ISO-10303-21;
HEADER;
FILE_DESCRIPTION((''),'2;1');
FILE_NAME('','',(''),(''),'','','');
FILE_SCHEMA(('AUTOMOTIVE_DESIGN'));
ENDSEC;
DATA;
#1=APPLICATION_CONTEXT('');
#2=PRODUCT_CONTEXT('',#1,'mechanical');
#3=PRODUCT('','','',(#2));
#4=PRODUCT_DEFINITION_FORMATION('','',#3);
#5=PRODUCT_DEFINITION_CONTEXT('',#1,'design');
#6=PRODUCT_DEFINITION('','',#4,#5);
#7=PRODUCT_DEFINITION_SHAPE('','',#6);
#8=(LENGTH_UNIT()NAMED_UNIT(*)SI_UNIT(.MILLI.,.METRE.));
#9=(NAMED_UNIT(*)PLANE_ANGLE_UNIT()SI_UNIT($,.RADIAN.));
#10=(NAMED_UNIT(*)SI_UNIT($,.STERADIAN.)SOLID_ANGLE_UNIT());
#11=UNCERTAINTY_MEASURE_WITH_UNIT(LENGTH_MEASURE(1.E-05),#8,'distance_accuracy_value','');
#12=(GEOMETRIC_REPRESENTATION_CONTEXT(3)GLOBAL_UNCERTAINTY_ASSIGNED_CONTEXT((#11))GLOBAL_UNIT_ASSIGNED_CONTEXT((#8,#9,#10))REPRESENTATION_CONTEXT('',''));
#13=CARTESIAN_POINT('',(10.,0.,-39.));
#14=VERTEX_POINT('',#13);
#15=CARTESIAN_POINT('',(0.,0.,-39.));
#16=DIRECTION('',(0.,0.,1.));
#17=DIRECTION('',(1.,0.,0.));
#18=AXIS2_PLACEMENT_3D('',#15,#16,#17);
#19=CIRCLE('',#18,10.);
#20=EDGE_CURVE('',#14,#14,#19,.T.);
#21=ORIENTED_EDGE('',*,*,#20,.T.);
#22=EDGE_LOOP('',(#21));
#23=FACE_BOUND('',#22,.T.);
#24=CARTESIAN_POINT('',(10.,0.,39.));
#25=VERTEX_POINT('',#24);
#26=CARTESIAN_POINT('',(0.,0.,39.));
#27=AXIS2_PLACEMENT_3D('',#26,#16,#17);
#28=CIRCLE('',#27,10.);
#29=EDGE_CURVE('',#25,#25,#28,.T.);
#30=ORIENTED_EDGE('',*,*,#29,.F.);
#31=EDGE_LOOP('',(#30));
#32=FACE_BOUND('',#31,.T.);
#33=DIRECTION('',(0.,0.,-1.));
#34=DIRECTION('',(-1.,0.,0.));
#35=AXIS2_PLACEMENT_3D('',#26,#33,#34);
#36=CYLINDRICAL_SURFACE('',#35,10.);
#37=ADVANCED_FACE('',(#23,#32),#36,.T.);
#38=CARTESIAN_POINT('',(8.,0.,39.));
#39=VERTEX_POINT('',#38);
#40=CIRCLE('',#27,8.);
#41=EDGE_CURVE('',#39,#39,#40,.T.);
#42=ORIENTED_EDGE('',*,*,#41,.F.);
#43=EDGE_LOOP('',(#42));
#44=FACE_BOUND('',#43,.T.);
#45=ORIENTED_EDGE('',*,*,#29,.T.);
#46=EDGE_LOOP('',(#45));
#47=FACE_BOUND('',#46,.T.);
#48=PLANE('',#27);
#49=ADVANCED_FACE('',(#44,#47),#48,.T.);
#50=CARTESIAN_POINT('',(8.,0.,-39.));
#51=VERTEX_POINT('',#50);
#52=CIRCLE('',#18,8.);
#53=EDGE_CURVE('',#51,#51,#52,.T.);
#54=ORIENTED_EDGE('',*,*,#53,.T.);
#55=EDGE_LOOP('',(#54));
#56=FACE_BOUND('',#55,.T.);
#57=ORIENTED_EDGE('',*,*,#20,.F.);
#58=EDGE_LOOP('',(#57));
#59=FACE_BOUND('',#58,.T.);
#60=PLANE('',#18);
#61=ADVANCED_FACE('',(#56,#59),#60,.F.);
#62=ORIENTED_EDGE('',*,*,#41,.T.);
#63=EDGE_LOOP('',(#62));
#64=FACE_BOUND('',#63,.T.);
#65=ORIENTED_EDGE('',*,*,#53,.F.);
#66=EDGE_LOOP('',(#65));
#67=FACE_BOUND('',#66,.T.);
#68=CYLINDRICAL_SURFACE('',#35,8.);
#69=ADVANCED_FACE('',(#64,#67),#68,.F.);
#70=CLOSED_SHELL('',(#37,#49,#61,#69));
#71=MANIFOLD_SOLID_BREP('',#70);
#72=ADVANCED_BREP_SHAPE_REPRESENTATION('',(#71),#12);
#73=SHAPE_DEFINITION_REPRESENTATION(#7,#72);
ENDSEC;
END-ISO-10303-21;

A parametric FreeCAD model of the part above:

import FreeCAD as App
import Part
import Sketcher
from FreeCAD import Vector

doc = App.newDocument("Part")
params = doc.addObject("Spreadsheet::Sheet", "Params")
for row, (alias, value) in enumerate([
    ("sketch1_diameter", "20 mm"),
    ("sketch1_diameter2", "16 mm"),
    ("pad1_length", "78 mm"),
], start=1):
    params.set(f"A{row}", alias)
    params.set(f"B{row}", "=" + value)
    params.setAlias(f"B{row}", alias)

body = doc.addObject("PartDesign::Body", "Body")

# Sketch on XY plane
sketch1 = doc.addObject("Sketcher::SketchObject", "Sketch")
body.addObject(sketch1)
sketch1.AttachmentSupport = (doc.XY_Plane, [""])
sketch1.MapMode = "FlatFace"
sketch1.addGeometry([
    Part.Circle(Vector(0, 0, 0), Vector(0, 0, 1), 10),
    Part.Circle(Vector(0, 0, 0), Vector(0, 0, 1), 8),
], False)
sketch1.addConstraint([
    Sketcher.Constraint("Coincident", 0, 3, -1, 1),
    Sketcher.Constraint("Coincident", 1, 3, -1, 1),
    Sketcher.Constraint("Diameter", 0, 20.0),
    Sketcher.Constraint("Diameter", 1, 16.0),
])
sketch1.setExpression("Constraints[2]", "Params.sketch1_diameter")
sketch1.setExpression("Constraints[3]", "Params.sketch1_diameter2")
pad1 = doc.addObject("PartDesign::Pad", "Pad")
body.addObject(pad1)
pad1.Profile = sketch1
pad1.setExpression("Length", "Params.pad1_length")
pad1.Midplane = True

doc.recompute()
